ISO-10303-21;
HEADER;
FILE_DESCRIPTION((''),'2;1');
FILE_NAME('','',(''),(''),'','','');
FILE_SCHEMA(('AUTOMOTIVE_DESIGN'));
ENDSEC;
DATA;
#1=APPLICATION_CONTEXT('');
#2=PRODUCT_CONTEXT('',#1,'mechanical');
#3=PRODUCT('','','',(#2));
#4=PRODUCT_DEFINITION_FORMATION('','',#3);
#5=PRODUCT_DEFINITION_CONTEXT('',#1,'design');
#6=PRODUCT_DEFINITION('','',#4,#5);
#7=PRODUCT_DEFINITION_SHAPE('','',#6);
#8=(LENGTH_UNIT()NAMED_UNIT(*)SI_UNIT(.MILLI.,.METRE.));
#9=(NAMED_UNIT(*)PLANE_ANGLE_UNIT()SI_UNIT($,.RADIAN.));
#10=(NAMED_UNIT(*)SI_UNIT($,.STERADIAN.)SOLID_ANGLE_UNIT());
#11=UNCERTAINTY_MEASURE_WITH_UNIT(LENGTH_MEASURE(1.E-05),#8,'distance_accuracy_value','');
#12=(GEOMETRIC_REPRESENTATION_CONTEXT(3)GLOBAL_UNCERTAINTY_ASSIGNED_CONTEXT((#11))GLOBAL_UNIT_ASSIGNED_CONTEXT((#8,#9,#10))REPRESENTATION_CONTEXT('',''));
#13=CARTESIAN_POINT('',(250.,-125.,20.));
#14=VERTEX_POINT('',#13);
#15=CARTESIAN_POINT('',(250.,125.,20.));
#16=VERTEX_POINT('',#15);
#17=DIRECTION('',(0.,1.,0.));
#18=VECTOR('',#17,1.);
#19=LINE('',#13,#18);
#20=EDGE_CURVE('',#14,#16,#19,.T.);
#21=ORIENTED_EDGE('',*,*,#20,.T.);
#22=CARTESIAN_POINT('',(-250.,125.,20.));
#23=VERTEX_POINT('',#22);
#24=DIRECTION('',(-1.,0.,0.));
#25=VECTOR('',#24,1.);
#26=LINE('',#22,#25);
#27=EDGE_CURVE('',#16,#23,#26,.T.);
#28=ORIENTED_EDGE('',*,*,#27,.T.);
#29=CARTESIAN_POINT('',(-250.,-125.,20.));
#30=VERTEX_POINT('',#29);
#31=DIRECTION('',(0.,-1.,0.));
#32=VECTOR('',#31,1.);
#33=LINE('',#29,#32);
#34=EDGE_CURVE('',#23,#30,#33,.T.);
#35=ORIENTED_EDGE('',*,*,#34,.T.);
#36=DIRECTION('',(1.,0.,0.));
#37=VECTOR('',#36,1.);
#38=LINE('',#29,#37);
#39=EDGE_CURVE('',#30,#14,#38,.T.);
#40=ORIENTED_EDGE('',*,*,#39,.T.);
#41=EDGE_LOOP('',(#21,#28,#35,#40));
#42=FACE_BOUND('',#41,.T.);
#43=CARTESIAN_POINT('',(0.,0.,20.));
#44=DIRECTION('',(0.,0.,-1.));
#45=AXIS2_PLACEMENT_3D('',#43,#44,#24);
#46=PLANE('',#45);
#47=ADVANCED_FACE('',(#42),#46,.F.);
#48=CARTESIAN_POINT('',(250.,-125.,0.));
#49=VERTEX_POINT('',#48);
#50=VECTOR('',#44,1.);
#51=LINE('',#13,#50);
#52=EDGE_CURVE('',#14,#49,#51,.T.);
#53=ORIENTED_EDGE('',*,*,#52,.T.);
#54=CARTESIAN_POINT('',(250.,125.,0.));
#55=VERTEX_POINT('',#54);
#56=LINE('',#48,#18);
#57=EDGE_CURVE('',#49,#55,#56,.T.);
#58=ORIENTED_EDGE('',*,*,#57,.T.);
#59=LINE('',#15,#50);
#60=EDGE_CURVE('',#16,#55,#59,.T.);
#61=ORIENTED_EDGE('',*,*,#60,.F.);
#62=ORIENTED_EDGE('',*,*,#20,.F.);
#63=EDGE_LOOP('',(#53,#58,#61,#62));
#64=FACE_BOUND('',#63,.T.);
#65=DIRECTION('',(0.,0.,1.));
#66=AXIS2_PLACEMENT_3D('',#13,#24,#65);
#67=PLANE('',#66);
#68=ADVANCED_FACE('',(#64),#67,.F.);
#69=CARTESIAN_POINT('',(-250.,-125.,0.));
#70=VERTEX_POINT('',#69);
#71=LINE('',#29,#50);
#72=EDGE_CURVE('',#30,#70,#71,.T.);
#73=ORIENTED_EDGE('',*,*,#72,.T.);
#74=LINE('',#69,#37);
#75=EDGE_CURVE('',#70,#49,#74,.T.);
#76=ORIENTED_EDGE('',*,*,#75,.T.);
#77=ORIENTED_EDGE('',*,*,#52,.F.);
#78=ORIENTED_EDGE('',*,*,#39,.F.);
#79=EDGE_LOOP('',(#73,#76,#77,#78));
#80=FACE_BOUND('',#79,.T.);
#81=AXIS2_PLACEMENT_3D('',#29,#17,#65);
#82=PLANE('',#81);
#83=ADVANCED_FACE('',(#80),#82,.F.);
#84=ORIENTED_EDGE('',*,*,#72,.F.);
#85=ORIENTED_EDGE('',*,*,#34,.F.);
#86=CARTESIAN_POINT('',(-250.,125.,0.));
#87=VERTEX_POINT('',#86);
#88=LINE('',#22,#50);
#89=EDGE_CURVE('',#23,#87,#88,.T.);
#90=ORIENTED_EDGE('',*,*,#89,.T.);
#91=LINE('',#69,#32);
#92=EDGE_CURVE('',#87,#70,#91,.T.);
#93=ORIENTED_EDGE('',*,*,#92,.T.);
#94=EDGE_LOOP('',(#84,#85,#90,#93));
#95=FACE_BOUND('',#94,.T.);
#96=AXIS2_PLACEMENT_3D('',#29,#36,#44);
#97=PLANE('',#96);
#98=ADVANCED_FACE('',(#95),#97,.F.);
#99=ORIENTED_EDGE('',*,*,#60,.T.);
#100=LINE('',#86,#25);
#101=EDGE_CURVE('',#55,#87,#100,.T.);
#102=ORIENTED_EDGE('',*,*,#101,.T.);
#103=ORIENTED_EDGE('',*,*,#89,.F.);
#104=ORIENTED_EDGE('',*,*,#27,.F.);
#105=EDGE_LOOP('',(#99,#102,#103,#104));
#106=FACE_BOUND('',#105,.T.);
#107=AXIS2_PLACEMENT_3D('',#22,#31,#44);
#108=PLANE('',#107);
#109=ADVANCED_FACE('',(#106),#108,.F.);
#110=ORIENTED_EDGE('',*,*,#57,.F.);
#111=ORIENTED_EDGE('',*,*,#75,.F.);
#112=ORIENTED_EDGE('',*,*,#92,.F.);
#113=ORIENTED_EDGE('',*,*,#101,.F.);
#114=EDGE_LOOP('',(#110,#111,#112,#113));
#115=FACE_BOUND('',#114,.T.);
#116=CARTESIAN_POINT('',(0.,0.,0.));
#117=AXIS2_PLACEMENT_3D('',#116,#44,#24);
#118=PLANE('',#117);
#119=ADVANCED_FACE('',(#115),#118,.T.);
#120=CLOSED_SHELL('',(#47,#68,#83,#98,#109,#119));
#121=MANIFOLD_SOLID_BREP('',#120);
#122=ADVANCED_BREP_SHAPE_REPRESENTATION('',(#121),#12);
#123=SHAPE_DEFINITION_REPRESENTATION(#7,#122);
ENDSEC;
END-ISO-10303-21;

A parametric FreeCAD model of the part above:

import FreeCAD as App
import Part
import Sketcher
from FreeCAD import Vector

doc = App.newDocument("Part")
body = doc.addObject("PartDesign::Body", "Body")

# Sketch on XY plane
sketch1 = doc.addObject("Sketcher::SketchObject", "Sketch")
body.addObject(sketch1)
sketch1.AttachmentSupport = (doc.XY_Plane, [""])
sketch1.MapMode = "FlatFace"
sketch1.addGeometry([
    Part.LineSegment(Vector(-250, 125, 0), Vector(-250, -125, 0)),
    Part.LineSegment(Vector(-250, -125, 0), Vector(250, -125, 0)),
    Part.LineSegment(Vector(250, -125, 0), Vector(250, 125, 0)),
    Part.LineSegment(Vector(250, 125, 0), Vector(-250, 125, 0)),
], False)
sketch1.addConstraint([
    Sketcher.Constraint("Coincident", 0, 2, 1, 1),
    Sketcher.Constraint("Coincident", 1, 2, 2, 1),
    Sketcher.Constraint("Coincident", 2, 2, 3, 1),
    Sketcher.Constraint("Coincident", 3, 2, 0, 1),
    Sketcher.Constraint("Vertical", 0),
    Sketcher.Constraint("Horizontal", 1),
    Sketcher.Constraint("Vertical", 2),
    Sketcher.Constraint("Horizontal", 3),
    Sketcher.Constraint("Symmetric", 0, 2, 2, 2, -1, 1),
    Sketcher.Constraint("DistanceX", 1, 1, 1, 2, 500.0),
    Sketcher.Constraint("DistanceY", 0, 2, 0, 1, 250.0),
])
pad1 = doc.addObject("PartDesign::Pad", "Pad")
body.addObject(pad1)
pad1.Profile = sketch1
pad1.Length = 20

doc.recompute()
